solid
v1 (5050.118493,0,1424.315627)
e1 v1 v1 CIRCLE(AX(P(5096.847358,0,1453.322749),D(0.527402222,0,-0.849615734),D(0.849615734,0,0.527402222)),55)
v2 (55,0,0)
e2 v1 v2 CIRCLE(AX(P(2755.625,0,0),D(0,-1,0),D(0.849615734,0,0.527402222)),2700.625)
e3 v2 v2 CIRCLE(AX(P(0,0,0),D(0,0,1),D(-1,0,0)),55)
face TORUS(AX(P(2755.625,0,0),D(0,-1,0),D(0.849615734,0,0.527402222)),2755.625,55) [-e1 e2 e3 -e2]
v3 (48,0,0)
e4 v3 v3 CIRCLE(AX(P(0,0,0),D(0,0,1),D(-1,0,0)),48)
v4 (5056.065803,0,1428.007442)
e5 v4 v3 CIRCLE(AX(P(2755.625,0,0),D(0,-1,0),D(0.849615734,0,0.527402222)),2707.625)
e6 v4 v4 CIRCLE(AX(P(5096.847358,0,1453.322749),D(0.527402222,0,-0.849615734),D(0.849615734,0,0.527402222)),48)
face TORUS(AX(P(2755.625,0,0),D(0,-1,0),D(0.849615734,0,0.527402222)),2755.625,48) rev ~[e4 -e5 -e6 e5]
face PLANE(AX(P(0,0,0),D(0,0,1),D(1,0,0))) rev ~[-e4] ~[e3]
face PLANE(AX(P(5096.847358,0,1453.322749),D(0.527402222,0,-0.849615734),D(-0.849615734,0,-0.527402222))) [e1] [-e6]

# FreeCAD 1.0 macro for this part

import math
import FreeCAD as App
import Part
import Sketcher
from FreeCAD import Vector

doc = App.newDocument("Part")
body = doc.addObject("PartDesign::Body", "Body")

# Sketch on XY plane
sketch1 = body.newObject("Sketcher::SketchObject", "Sketch")
sketch1.AttachmentSupport = (doc.getObject("XY_Plane"), [""])
sketch1.MapMode = "FlatFace"
sketch1.addGeometry(Part.Circle(Vector(0, 0, 0), Vector(0, 0, 1), 55), False)
sketch1.addGeometry(Part.Circle(Vector(0, 0, 0), Vector(0, 0, 1), 48), False)
sketch1.addConstraint(Sketcher.Constraint("Coincident", 0, 3, -1, 1))
sketch1.addConstraint(Sketcher.Constraint("Coincident", 1, 3, -1, 1))
sketch1.addConstraint(Sketcher.Constraint("Diameter", 0, 110.0))
sketch1.addConstraint(Sketcher.Constraint("Diameter", 1, 96.0))

# Sketch on XZ plane
sketch2 = body.newObject("Sketcher::SketchObject", "Sketch001")
sketch2.AttachmentSupport = (doc.getObject("XZ_Plane"), [""])
sketch2.MapMode = "FlatFace"
sketch2.addGeometry(Part.ArcOfCircle(Part.Circle(Vector(2756, 0, 0), Vector(0, 0, 1), 2756), math.radians(32), math.radians(180)), False)
sketch2.addConstraint(Sketcher.Constraint("Coincident", 0, 2, -1, 1))
sketch2.addConstraint(Sketcher.Constraint("PointOnObject", 0, 3, -1))
sketch2.addConstraint(Sketcher.Constraint("Radius", 0, 2755.625))
sketch2.addConstraint(Sketcher.Constraint("DistanceX", -1, 1, 0, 1, 5096.847358))
doc.recompute()

additivepipe = body.newObject("PartDesign::AdditivePipe", "AdditivePipe")
additivepipe.Profile = sketch1
additivepipe.Spine = (sketch2, ["Edge1"])

doc.recompute()
